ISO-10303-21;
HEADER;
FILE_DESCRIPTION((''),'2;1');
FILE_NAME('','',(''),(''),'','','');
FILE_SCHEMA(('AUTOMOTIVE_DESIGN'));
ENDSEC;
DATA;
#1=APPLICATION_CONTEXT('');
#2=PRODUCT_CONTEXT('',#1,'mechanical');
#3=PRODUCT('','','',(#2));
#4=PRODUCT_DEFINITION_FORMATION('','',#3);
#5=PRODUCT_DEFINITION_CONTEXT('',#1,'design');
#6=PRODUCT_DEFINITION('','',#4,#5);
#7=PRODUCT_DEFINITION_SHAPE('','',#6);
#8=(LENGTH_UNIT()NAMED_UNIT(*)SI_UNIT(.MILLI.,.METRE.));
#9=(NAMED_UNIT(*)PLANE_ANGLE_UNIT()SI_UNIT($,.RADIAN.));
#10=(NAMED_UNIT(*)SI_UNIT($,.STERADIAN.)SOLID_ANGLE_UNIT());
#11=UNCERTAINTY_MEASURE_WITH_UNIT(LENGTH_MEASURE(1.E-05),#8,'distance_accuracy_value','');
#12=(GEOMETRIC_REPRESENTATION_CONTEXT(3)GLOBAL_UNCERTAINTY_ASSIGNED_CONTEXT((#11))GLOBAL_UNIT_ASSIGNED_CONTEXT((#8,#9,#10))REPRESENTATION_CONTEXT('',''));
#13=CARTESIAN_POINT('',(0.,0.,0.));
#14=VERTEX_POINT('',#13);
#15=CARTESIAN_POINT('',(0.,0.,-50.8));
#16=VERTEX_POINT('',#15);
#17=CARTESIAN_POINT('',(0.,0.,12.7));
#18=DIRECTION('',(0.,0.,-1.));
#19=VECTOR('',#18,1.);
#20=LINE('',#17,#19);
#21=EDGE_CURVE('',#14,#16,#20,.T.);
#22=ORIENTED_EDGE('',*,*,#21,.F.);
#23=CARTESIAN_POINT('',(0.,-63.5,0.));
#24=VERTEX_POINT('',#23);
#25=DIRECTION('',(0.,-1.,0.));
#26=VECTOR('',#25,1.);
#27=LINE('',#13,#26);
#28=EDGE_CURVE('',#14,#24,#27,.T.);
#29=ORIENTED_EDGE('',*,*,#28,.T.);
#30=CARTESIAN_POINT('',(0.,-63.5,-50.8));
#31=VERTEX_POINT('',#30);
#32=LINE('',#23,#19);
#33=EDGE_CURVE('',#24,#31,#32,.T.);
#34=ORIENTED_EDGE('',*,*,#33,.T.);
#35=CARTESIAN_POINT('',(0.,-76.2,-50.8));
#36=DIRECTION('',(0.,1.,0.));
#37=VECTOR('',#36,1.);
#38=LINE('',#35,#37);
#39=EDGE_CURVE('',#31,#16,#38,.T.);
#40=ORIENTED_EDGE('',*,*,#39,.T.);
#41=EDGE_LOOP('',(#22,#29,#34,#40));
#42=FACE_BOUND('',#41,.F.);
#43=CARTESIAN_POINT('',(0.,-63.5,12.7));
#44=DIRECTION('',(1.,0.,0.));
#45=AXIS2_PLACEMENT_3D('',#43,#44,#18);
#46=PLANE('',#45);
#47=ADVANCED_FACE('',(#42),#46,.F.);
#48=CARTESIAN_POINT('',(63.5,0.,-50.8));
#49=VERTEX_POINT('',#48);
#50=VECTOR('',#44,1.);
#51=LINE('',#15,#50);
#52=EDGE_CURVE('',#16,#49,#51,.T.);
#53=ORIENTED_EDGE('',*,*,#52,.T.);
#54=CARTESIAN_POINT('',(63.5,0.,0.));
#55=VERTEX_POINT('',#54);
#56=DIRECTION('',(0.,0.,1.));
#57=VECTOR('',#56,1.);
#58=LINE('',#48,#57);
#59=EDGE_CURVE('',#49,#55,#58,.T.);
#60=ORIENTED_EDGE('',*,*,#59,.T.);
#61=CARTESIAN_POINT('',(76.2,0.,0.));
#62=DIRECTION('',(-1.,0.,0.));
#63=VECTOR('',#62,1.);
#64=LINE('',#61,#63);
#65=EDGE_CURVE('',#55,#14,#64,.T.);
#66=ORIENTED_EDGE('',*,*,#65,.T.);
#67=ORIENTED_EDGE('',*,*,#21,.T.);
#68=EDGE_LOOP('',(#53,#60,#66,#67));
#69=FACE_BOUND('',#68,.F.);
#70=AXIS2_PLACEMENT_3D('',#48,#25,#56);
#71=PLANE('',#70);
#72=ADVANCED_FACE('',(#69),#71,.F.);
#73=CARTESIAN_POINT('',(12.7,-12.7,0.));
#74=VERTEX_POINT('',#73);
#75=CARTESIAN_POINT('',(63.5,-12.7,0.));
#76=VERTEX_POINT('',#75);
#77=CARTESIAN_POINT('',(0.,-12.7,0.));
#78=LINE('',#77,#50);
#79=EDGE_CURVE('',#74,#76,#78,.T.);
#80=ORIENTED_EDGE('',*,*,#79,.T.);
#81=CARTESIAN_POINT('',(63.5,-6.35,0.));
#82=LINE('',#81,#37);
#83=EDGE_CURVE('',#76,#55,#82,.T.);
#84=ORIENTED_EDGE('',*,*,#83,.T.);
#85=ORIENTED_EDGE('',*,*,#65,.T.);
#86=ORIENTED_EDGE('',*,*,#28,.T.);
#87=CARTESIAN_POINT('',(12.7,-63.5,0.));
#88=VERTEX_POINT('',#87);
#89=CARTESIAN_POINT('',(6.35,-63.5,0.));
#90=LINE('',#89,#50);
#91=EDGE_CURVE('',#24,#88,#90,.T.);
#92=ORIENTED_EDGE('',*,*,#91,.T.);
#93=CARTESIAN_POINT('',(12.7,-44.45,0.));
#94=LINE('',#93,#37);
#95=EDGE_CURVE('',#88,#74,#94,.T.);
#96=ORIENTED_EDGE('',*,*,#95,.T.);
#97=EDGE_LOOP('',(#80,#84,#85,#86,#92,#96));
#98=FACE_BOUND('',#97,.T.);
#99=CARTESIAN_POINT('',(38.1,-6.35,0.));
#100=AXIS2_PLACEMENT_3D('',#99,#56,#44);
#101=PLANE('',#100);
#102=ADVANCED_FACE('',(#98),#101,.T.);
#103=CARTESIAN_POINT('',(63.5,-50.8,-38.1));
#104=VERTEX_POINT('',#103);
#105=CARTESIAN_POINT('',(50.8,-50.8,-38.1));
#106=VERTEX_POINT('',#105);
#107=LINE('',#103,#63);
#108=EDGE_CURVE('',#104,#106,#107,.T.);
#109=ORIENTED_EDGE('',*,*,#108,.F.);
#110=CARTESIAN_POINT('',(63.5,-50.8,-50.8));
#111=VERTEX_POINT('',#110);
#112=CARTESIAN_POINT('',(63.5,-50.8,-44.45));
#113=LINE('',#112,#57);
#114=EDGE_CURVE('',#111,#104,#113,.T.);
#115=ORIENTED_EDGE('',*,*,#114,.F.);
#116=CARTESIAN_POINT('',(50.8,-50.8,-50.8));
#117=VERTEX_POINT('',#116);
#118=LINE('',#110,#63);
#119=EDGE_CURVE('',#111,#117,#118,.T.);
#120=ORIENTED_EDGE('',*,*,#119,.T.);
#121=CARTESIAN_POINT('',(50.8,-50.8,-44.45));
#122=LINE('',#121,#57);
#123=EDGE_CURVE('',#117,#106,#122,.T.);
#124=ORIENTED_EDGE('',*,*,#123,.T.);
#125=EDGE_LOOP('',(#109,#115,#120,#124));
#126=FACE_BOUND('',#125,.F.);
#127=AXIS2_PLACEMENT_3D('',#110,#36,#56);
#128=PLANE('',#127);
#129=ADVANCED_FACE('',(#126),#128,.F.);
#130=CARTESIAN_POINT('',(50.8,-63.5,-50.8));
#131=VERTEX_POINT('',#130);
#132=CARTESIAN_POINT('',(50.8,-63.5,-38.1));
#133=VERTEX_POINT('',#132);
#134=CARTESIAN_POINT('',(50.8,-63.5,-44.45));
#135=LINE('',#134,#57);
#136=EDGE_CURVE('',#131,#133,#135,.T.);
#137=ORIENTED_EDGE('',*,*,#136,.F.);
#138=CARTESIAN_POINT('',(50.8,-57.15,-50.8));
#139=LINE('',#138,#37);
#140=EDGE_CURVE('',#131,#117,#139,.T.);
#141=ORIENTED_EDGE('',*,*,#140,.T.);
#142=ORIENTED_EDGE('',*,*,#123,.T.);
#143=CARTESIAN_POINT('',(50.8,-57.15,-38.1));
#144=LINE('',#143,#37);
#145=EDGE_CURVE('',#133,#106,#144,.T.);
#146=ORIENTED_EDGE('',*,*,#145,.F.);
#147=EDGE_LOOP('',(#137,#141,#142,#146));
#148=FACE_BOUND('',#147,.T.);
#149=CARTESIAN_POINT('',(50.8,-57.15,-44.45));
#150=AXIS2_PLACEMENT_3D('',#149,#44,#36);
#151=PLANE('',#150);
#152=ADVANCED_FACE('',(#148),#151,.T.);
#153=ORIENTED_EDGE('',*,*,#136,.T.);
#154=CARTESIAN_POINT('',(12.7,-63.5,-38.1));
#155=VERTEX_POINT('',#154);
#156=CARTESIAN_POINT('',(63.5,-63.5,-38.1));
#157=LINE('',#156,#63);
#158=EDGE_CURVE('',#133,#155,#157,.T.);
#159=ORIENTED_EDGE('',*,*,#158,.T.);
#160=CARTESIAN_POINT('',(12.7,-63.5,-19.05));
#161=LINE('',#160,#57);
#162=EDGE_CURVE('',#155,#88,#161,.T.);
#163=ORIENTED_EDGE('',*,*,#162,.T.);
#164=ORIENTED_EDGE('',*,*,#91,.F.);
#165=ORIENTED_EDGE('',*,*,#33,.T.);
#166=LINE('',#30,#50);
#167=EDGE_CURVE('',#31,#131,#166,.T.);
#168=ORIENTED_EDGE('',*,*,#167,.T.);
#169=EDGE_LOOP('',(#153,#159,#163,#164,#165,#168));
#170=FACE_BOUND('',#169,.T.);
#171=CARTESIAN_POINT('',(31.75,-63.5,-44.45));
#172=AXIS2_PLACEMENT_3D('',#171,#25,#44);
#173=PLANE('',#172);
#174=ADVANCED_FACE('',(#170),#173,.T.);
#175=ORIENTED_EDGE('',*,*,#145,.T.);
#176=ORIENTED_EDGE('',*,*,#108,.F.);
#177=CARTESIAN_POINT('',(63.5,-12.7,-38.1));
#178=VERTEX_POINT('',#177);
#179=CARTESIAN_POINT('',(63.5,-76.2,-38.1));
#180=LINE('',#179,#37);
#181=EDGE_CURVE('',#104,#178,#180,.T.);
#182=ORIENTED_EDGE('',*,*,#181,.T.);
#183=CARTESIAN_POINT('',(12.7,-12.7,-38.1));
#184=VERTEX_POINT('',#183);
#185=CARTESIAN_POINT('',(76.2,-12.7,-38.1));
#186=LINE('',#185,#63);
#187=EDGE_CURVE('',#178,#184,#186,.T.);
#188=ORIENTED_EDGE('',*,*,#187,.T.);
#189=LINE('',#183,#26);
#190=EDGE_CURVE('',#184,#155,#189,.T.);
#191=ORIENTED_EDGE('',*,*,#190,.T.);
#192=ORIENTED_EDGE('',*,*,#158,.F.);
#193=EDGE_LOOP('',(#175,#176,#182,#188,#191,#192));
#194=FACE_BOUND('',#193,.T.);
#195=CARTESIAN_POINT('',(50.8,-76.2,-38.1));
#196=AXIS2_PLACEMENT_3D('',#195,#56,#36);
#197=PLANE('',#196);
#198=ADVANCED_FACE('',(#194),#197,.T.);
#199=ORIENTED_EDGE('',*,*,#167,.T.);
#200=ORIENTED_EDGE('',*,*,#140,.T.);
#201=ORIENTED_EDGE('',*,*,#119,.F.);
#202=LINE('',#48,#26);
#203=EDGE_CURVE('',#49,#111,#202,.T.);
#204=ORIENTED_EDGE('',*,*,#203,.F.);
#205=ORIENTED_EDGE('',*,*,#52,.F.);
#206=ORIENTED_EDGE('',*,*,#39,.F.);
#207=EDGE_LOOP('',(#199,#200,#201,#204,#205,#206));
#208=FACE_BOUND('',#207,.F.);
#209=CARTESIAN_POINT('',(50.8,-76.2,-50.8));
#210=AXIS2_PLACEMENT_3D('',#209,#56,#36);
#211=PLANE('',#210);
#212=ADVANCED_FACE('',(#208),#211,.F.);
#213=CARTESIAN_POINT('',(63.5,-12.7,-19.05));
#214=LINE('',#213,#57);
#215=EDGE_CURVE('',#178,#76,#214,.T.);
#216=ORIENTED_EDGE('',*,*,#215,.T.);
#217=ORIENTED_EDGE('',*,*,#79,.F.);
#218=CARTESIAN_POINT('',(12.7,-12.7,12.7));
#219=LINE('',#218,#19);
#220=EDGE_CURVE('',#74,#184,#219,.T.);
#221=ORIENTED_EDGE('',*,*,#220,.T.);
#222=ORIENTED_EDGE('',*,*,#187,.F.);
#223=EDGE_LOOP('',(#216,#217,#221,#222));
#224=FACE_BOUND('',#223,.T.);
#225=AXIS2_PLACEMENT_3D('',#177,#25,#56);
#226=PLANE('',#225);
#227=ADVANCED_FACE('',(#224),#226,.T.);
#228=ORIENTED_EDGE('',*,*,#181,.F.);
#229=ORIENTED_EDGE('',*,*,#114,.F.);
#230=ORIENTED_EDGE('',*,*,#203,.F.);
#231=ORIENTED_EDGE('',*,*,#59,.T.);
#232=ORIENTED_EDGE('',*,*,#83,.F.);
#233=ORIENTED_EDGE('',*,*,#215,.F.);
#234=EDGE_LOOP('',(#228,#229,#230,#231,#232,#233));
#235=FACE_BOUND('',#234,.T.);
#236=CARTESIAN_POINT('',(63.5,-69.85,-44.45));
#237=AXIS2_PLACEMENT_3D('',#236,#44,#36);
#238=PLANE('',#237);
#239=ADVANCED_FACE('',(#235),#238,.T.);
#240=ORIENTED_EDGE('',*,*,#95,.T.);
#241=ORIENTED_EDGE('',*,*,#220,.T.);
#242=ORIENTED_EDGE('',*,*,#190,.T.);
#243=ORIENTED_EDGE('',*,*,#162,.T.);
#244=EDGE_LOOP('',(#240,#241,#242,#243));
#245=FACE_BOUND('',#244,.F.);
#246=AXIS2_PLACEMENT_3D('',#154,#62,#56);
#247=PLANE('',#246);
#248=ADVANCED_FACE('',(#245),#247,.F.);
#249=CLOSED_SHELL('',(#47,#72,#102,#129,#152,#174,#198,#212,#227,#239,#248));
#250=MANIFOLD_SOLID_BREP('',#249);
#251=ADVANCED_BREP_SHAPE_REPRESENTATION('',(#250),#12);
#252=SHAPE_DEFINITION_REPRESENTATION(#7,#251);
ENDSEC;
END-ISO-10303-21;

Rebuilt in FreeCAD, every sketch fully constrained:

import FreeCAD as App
import Part
import Sketcher
from FreeCAD import Vector
Q = App.Units.Quantity

doc = App.newDocument("Part")
body = doc.addObject("PartDesign::Body", "Body")

sketch1 = body.newObject("Sketcher::SketchObject", "Sketch")
sketch1.AttachmentSupport = (doc.getObject("XZ_Plane"), [""])
sketch1.MapMode = "FlatFace"
sketch1.addGeometry(Part.LineSegment(Vector(0, 0, 0), Vector(0, -51, 0)), False)
sketch1.addGeometry(Part.LineSegment(Vector(0, -51, 0), Vector(13, -51, 0)), False)
sketch1.addGeometry(Part.LineSegment(Vector(13, -51, 0), Vector(13, 0, 0)), False)
sketch1.addGeometry(Part.LineSegment(Vector(13, 0, 0), Vector(0, 0, 0)), False)
sketch1.addConstraint(Sketcher.Constraint("Coincident", 0, 2, 1, 1))
sketch1.addConstraint(Sketcher.Constraint("Coincident", 1, 2, 2, 1))
sketch1.addConstraint(Sketcher.Constraint("Coincident", 2, 2, 3, 1))
sketch1.addConstraint(Sketcher.Constraint("Coincident", 3, 2, 0, 1))
sketch1.addConstraint(Sketcher.Constraint("Vertical", 0))
sketch1.addConstraint(Sketcher.Constraint("Horizontal", 1))
sketch1.addConstraint(Sketcher.Constraint("Vertical", 2))
sketch1.addConstraint(Sketcher.Constraint("Horizontal", 3))
sketch1.addConstraint(Sketcher.Constraint("Coincident", 3, 2, -1, 1))
sketch1.addConstraint(Sketcher.Constraint("DistanceY", 0, 2, 0, 1, Q("2 in")))
sketch1.addConstraint(Sketcher.Constraint("DistanceX", 1, 1, 1, 2, Q("0.5 in")))
pad1 = body.newObject("PartDesign::Pad", "Pad")
pad1.Profile = sketch1
pad1.Length = Q("2.5 in")

sketch2 = body.newObject("Sketcher::SketchObject", "Sketch001")
sketch2.AttachmentSupport = (doc.getObject("YZ_Plane"), [""])
sketch2.MapMode = "FlatFace"
sketch2.AttachmentOffset = App.Placement(Vector(0, 0, 0.5 * 25.4), App.Rotation())
sketch2.addGeometry(Part.LineSegment(Vector(-64, -38, 0), Vector(-64, -51, 0)), False)
sketch2.addGeometry(Part.LineSegment(Vector(-64, -51, 0), Vector(0, -51, 0)), False)
sketch2.addGeometry(Part.LineSegment(Vector(0, -51, 0), Vector(0, -38, 0)), False)
sketch2.addGeometry(Part.LineSegment(Vector(0, -38, 0), Vector(-64, -38, 0)), False)
sketch2.addConstraint(Sketcher.Constraint("Coincident", 0, 2, 1, 1))
sketch2.addConstraint(Sketcher.Constraint("Coincident", 1, 2, 2, 1))
sketch2.addConstraint(Sketcher.Constraint("Coincident", 2, 2, 3, 1))
sketch2.addConstraint(Sketcher.Constraint("Coincident", 3, 2, 0, 1))
sketch2.addConstraint(Sketcher.Constraint("Vertical", 0))
sketch2.addConstraint(Sketcher.Constraint("Horizontal", 1))
sketch2.addConstraint(Sketcher.Constraint("Vertical", 2))
sketch2.addConstraint(Sketcher.Constraint("Horizontal", 3))
sketch2.addConstraint(Sketcher.Constraint("PointOnObject", 1, 2, -2))
sketch2.addConstraint(Sketcher.Constraint("DistanceX", 1, 1, 1, 2, Q("2.5 in")))
sketch2.addConstraint(Sketcher.Constraint("DistanceY", 0, 2, 0, 1, Q("0.5 in")))
sketch2.addConstraint(Sketcher.Constraint("DistanceY", 0, 2, -1, 1, Q("2 in")))
pad2 = body.newObject("PartDesign::Pad", "Pad001")
pad2.Profile = sketch2
pad2.Length = Q("2 in")

sketch3 = body.newObject("Sketcher::SketchObject", "Sketch002")
sketch3.AttachmentSupport = (doc.getObject("YZ_Plane"), [""])
sketch3.MapMode = "FlatFace"
sketch3.AttachmentOffset = App.Placement(Vector(0, 0, 0.5 * 25.4), App.Rotation())
sketch3.addGeometry(Part.LineSegment(Vector(-13, 0, 0), Vector(-13, -38, 0)), False)
sketch3.addGeometry(Part.LineSegment(Vector(-13, -38, 0), Vector(0, -38, 0)), False)
sketch3.addGeometry(Part.LineSegment(Vector(0, -38, 0), Vector(0, 0, 0)), False)
sketch3.addGeometry(Part.LineSegment(Vector(0, 0, 0), Vector(-13, 0, 0)), False)
sketch3.addConstraint(Sketcher.Constraint("Coincident", 0, 2, 1, 1))
sketch3.addConstraint(Sketcher.Constraint("Coincident", 1, 2, 2, 1))
sketch3.addConstraint(Sketcher.Constraint("Coincident", 2, 2, 3, 1))
sketch3.addConstraint(Sketcher.Constraint("Coincident", 3, 2, 0, 1))
sketch3.addConstraint(Sketcher.Constraint("Vertical", 0))
sketch3.addConstraint(Sketcher.Constraint("Horizontal", 1))
sketch3.addConstraint(Sketcher.Constraint("Vertical", 2))
sketch3.addConstraint(Sketcher.Constraint("Horizontal", 3))
sketch3.addConstraint(Sketcher.Constraint("Coincident", 2, 2, -1, 1))
sketch3.addConstraint(Sketcher.Constraint("DistanceX", 1, 1, 1, 2, Q("0.5 in")))
sketch3.addConstraint(Sketcher.Constraint("DistanceY", 0, 2, 0, 1, Q("1.5 in")))
pad3 = body.newObject("PartDesign::Pad", "Pad002")
pad3.Profile = sketch3
pad3.Length = Q("2 in")

sketch4 = body.newObject("Sketcher::SketchObject", "Sketch003")
sketch4.AttachmentSupport = (doc.getObject("YZ_Plane"), [""])
sketch4.MapMode = "FlatFace"
sketch4.AttachmentOffset = App.Placement(Vector(0, 0, 2.5 * 25.4), App.Rotation())
sketch4.addGeometry(Part.LineSegment(Vector(-64, -38, 0), Vector(-64, -51, 0)), False)
sketch4.addGeometry(Part.LineSegment(Vector(-64, -51, 0), Vector(-51, -51, 0)), False)
sketch4.addGeometry(Part.LineSegment(Vector(-51, -51, 0), Vector(-51, -38, 0)), False)
sketch4.addGeometry(Part.LineSegment(Vector(-51, -38, 0), Vector(-64, -38, 0)), False)
sketch4.addConstraint(Sketcher.Constraint("Coincident", 0, 2, 1, 1))
sketch4.addConstraint(Sketcher.Constraint("Coincident", 1, 2, 2, 1))
sketch4.addConstraint(Sketcher.Constraint("Coincident", 2, 2, 3, 1))
sketch4.addConstraint(Sketcher.Constraint("Coincident", 3, 2, 0, 1))
sketch4.addConstraint(Sketcher.Constraint("Vertical", 0))
sketch4.addConstraint(Sketcher.Constraint("Horizontal", 1))
sketch4.addConstraint(Sketcher.Constraint("Vertical", 2))
sketch4.addConstraint(Sketcher.Constraint("Horizontal", 3))
sketch4.addConstraint(Sketcher.Constraint("Equal", 3, 0))
sketch4.addConstraint(Sketcher.Constraint("DistanceX", 1, 1, 1, 2, Q("0.5 in")))
sketch4.addConstraint(Sketcher.Constraint("DistanceY", 0, 2, -1, 1, Q("2 in")))
sketch4.addConstraint(Sketcher.Constraint("DistanceX", 1, 2, -1, 1, Q("2 in")))
pad4 = body.newObject("PartDesign::Pad", "Pad003")
pad4.Profile = sketch4
pad4.Length = Q("0.5 in")
pad4.Reversed = True

sketch5 = body.newObject("Sketcher::SketchObject", "Sketch004")
sketch5.AttachmentSupport = (doc.getObject("XY_Plane"), [""])
sketch5.MapMode = "FlatFace"
sketch5.AttachmentOffset = App.Placement(Vector(0, 0, -1.5 * 25.4), App.Rotation())
sketch5.addGeometry(Part.LineSegment(Vector(51, -51, 0), Vector(51, -64, 0)), False)
sketch5.addGeometry(Part.LineSegment(Vector(51, -64, 0), Vector(64, -64, 0)), False)
sketch5.addGeometry(Part.LineSegment(Vector(64, -64, 0), Vector(64, -51, 0)), False)
sketch5.addGeometry(Part.LineSegment(Vector(64, -51, 0), Vector(51, -51, 0)), False)
sketch5.addConstraint(Sketcher.Constraint("Coincident", 0, 2, 1, 1))
sketch5.addConstraint(Sketcher.Constraint("Coincident", 1, 2, 2, 1))
sketch5.addConstraint(Sketcher.Constraint("Coincident", 2, 2, 3, 1))
sketch5.addConstraint(Sketcher.Constraint("Coincident", 3, 2, 0, 1))
sketch5.addConstraint(Sketcher.Constraint("Vertical", 0))
sketch5.addConstraint(Sketcher.Constraint("Horizontal", 1))
sketch5.addConstraint(Sketcher.Constraint("Vertical", 2))
sketch5.addConstraint(Sketcher.Constraint("Horizontal", 3))
sketch5.addConstraint(Sketcher.Constraint("Equal", 3, 0))
sketch5.addConstraint(Sketcher.Constraint("DistanceX", 1, 1, 1, 2, Q("0.5 in")))
sketch5.addConstraint(Sketcher.Constraint("DistanceX", -1, 1, 0, 2, Q("2 in")))
sketch5.addConstraint(Sketcher.Constraint("DistanceY", 2, 2, -1, 1, Q("2 in")))
pocket1 = body.newObject("PartDesign::Pocket", "Pocket")
pocket1.Profile = sketch5
pocket1.Length = Q("0.5 in")

sketch6 = body.newObject("Sketcher::SketchObject", "Sketch005")
sketch6.AttachmentSupport = (doc.getObject("XY_Plane"), [""])
sketch6.MapMode = "FlatFace"
sketch6.addGeometry(Part.LineSegment(Vector(0, 0, 0), Vector(0, -64, 0)), False)
sketch6.addGeometry(Part.LineSegment(Vector(0, -64, 0), Vector(13, -64, 0)), False)
sketch6.addGeometry(Part.LineSegment(Vector(13, -64, 0), Vector(13, 0, 0)), False)
sketch6.addGeometry(Part.LineSegment(Vector(13, 0, 0), Vector(0, 0, 0)), False)
sketch6.addConstraint(Sketcher.Constraint("Coincident", 0, 2, 1, 1))
sketch6.addConstraint(Sketcher.Constraint("Coincident", 1, 2, 2, 1))
sketch6.addConstraint(Sketcher.Constraint("Coincident", 2, 2, 3, 1))
sketch6.addConstraint(Sketcher.Constraint("Coincident", 3, 2, 0, 1))
sketch6.addConstraint(Sketcher.Constraint("Vertical", 0))
sketch6.addConstraint(Sketcher.Constraint("Horizontal", 1))
sketch6.addConstraint(Sketcher.Constraint("Vertical", 2))
sketch6.addConstraint(Sketcher.Constraint("Horizontal", 3))
sketch6.addConstraint(Sketcher.Constraint("Coincident", 3, 2, -1, 1))
sketch6.addConstraint(Sketcher.Constraint("DistanceX", 1, 1, 1, 2, Q("0.5 in")))
sketch6.addConstraint(Sketcher.Constraint("DistanceY", 0, 2, 0, 1, Q("2.5 in")))
pad5 = body.newObject("PartDesign::Pad", "Pad004")
pad5.Profile = sketch6
pad5.Length = Q("0.5 in")

sketch7 = body.newObject("Sketcher::SketchObject", "Sketch006")
sketch7.AttachmentSupport = (doc.getObject("XY_Plane"), [""])
sketch7.MapMode = "FlatFace"
sketch7.addGeometry(Part.LineSegment(Vector(13, 0, 0), Vector(13, -13, 0)), False)
sketch7.addGeometry(Part.LineSegment(Vector(13, -13, 0), Vector(64, -13, 0)), False)
sketch7.addGeometry(Part.LineSegment(Vector(64, -13, 0), Vector(64, 0, 0)), False)
sketch7.addGeometry(Part.LineSegment(Vector(64, 0, 0), Vector(13, 0, 0)), False)
sketch7.addConstraint(Sketcher.Constraint("Coincident", 0, 2, 1, 1))
sketch7.addConstraint(Sketcher.Constraint("Coincident", 1, 2, 2, 1))
sketch7.addConstraint(Sketcher.Constraint("Coincident", 2, 2, 3, 1))
sketch7.addConstraint(Sketcher.Constraint("Coincident", 3, 2, 0, 1))
sketch7.addConstraint(Sketcher.Constraint("Vertical", 0))
sketch7.addConstraint(Sketcher.Constraint("Horizontal", 1))
sketch7.addConstraint(Sketcher.Constraint("Vertical", 2))
sketch7.addConstraint(Sketcher.Constraint("Horizontal", 3))
sketch7.addConstraint(Sketcher.Constraint("PointOnObject", 2, 2, -1))
sketch7.addConstraint(Sketcher.Constraint("DistanceX", 1, 1, 1, 2, Q("2 in")))
sketch7.addConstraint(Sketcher.Constraint("DistanceY", 0, 2, 0, 1, Q("0.5 in")))
sketch7.addConstraint(Sketcher.Constraint("DistanceX", -1, 1, 0, 2, Q("0.5 in")))
pad6 = body.newObject("PartDesign::Pad", "Pad005")
pad6.Profile = sketch7
pad6.Length = Q("0.5 in")

sketch8 = body.newObject("Sketcher::SketchObject", "Sketch007")
sketch8.AttachmentSupport = (doc.getObject("XZ_Plane"), [""])
sketch8.MapMode = "FlatFace"
sketch8.AttachmentOffset = App.Placement(Vector(0, 0, 2.5 * 25.4), App.Rotation())
sketch8.addGeometry(Part.LineSegment(Vector(51, -51, 0), Vector(51, -38, 0)), False)
sketch8.addGeometry(Part.LineSegment(Vector(51, -38, 0), Vector(13, -38, 0)), False)
sketch8.addGeometry(Part.LineSegment(Vector(13, -38, 0), Vector(13, 13, 0)), False)
sketch8.addGeometry(Part.LineSegment(Vector(13, 13, 0), Vector(0, 13, 0)), False)
sketch8.addGeometry(Part.LineSegment(Vector(0, 13, 0), Vector(0, -51, 0)), False)
sketch8.addGeometry(Part.LineSegment(Vector(0, -51, 0), Vector(51, -51, 0)), False)
sketch8.addConstraint(Sketcher.Constraint("Coincident", 0, 2, 1, 1))
sketch8.addConstraint(Sketcher.Constraint("Coincident", 1, 2, 2, 1))
sketch8.addConstraint(Sketcher.Constraint("Coincident", 2, 2, 3, 1))
sketch8.addConstraint(Sketcher.Constraint("Coincident", 3, 2, 4, 1))
sketch8.addConstraint(Sketcher.Constraint("Coincident", 4, 2, 5, 1))
sketch8.addConstraint(Sketcher.Constraint("Coincident", 5, 2, 0, 1))
sketch8.addConstraint(Sketcher.Constraint("Vertical", 0))
sketch8.addConstraint(Sketcher.Constraint("Horizontal", 1))
sketch8.addConstraint(Sketcher.Constraint("Vertical", 2))
sketch8.addConstraint(Sketcher.Constraint("Horizontal", 3))
sketch8.addConstraint(Sketcher.Constraint("Vertical", 4))
sketch8.addConstraint(Sketcher.Constraint("Horizontal", 5))
sketch8.addConstraint(Sketcher.Constraint("PointOnObject", 3, 2, -2))
sketch8.addConstraint(Sketcher.Constraint("Equal", 3, 0))
sketch8.addConstraint(Sketcher.Constraint("Equal", 5, 2))
sketch8.addConstraint(Sketcher.Constraint("DistanceX", 5, 1, 5, 2, Q("2 in")))
sketch8.addConstraint(Sketcher.Constraint("DistanceX", 1, 2, 1, 1, Q("1.5 in")))
sketch8.addConstraint(Sketcher.Constraint("DistanceY", 4, 2, -1, 1, Q("2 in")))
pad7 = body.newObject("PartDesign::Pad", "Pad006")
pad7.Profile = sketch8
pad7.Length = Q("0.5 in")

sketch9 = body.newObject("Sketcher::SketchObject", "Sketch008")
sketch9.AttachmentSupport = (doc.getObject("YZ_Plane"), [""])
sketch9.MapMode = "FlatFace"
sketch9.AttachmentOffset = App.Placement(Vector(0, 0, 2.5 * 25.4), App.Rotation())
sketch9.addGeometry(Part.LineSegment(Vector(-51, -38, 0), Vector(-51, -51, 0)), False)
sketch9.addGeometry(Part.LineSegment(Vector(-51, -51, 0), Vector(0, -51, 0)), False)
sketch9.addGeometry(Part.LineSegment(Vector(0, -51, 0), Vector(0, 13, 0)), False)
sketch9.addGeometry(Part.LineSegment(Vector(0, 13, 0), Vector(-13, 13, 0)), False)
sketch9.addGeometry(Part.LineSegment(Vector(-13, 13, 0), Vector(-13, -38, 0)), False)
sketch9.addGeometry(Part.LineSegment(Vector(-13, -38, 0), Vector(-51, -38, 0)), False)
sketch9.addConstraint(Sketcher.Constraint("Coincident", 0, 2, 1, 1))
sketch9.addConstraint(Sketcher.Constraint("Coincident", 1, 2, 2, 1))
sketch9.addConstraint(Sketcher.Constraint("Coincident", 2, 2, 3, 1))
sketch9.addConstraint(Sketcher.Constraint("Coincident", 3, 2, 4, 1))
sketch9.addConstraint(Sketcher.Constraint("Coincident", 4, 2, 5, 1))
sketch9.addConstraint(Sketcher.Constraint("Coincident", 5, 2, 0, 1))
sketch9.addConstraint(Sketcher.Constraint("Vertical", 0))
sketch9.addConstraint(Sketcher.Constraint("Horizontal", 1))
sketch9.addConstraint(Sketcher.Constraint("Vertical", 2))
sketch9.addConstraint(Sketcher.Constraint("Horizontal", 3))
sketch9.addConstraint(Sketcher.Constraint("Vertical", 4))
sketch9.addConstraint(Sketcher.Constraint("Horizontal", 5))
sketch9.addConstraint(Sketcher.Constraint("PointOnObject", 1, 2, -2))
sketch9.addConstraint(Sketcher.Constraint("Equal", 3, 0))
sketch9.addConstraint(Sketcher.Constraint("Equal", 1, 4))
sketch9.addConstraint(Sketcher.Constraint("DistanceX", 1, 1, 1, 2, Q("2 in")))
sketch9.addConstraint(Sketcher.Constraint("DistanceX", 3, 2, 3, 1, Q("0.5 in")))
sketch9.addConstraint(Sketcher.Constraint("DistanceY", 0, 2, -1, 1, Q("2 in")))
pad8 = body.newObject("PartDesign::Pad", "Pad007")
pad8.Profile = sketch9
pad8.Length = Q("0.5 in")

sketch10 = body.newObject("Sketcher::SketchObject", "Sketch009")
sketch10.AttachmentSupport = (doc.getObject("YZ_Plane"), [""])
sketch10.MapMode = "FlatFace"
sketch10.AttachmentOffset = App.Placement(Vector(0, 0, 2 * 25.4), App.Rotation())
sketch10.addGeometry(Part.LineSegment(Vector(-64, -38, 0), Vector(-64, -51, 0)), False)
sketch10.addGeometry(Part.LineSegment(Vector(-64, -51, 0), Vector(-51, -51, 0)), False)
sketch10.addGeometry(Part.LineSegment(Vector(-51, -51, 0), Vector(-51, -38, 0)), False)
sketch10.addGeometry(Part.LineSegment(Vector(-51, -38, 0), Vector(-64, -38, 0)), False)
sketch10.addConstraint(Sketcher.Constraint("Coincident", 0, 2, 1, 1))
sketch10.addConstraint(Sketcher.Constraint("Coincident", 1, 2, 2, 1))
sketch10.addConstraint(Sketcher.Constraint("Coincident", 2, 2, 3, 1))
sketch10.addConstraint(Sketcher.Constraint("Coincident", 3, 2, 0, 1))
sketch10.addConstraint(Sketcher.Constraint("Vertical", 0))
sketch10.addConstraint(Sketcher.Constraint("Horizontal", 1))
sketch10.addConstraint(Sketcher.Constraint("Vertical", 2))
sketch10.addConstraint(Sketcher.Constraint("Horizontal", 3))
sketch10.addConstraint(Sketcher.Constraint("Equal", 3, 0))
sketch10.addConstraint(Sketcher.Constraint("DistanceX", 1, 1, 1, 2, Q("0.5 in")))
sketch10.addConstraint(Sketcher.Constraint("DistanceY", 0, 2, -1, 1, Q("2 in")))
sketch10.addConstraint(Sketcher.Constraint("DistanceX", 1, 2, -1, 1, Q("2 in")))
pad9 = body.newObject("PartDesign::Pad", "Pad008")
pad9.Profile = sketch10
pad9.Length = Q("1 in")

sketch11 = body.newObject("Sketcher::SketchObject", "Sketch010")
sketch11.AttachmentSupport = (doc.getObject("YZ_Plane"), [""])
sketch11.MapMode = "FlatFace"
sketch11.AttachmentOffset = App.Placement(Vector(0, 0, 2 * 25.4), App.Rotation())
sketch11.addGeometry(Part.LineSegment(Vector(-76, -38, 0), Vector(-76, -51, 0)), False)
sketch11.addGeometry(Part.LineSegment(Vector(-76, -51, 0), Vector(-64, -51, 0)), False)
sketch11.addGeometry(Part.LineSegment(Vector(-64, -51, 0), Vector(-64, -38, 0)), False)
sketch11.addGeometry(Part.LineSegment(Vector(-64, -38, 0), Vector(-76, -38, 0)), False)
sketch11.addConstraint(Sketcher.Constraint("Coincident", 0, 2, 1, 1))
sketch11.addConstraint(Sketcher.Constraint("Coincident", 1, 2, 2, 1))
sketch11.addConstraint(Sketcher.Constraint("Coincident", 2, 2, 3, 1))
sketch11.addConstraint(Sketcher.Constraint("Coincident", 3, 2, 0, 1))
sketch11.addConstraint(Sketcher.Constraint("Vertical", 0))
sketch11.addConstraint(Sketcher.Constraint("Horizontal", 1))
sketch11.addConstraint(Sketcher.Constraint("Vertical", 2))
sketch11.addConstraint(Sketcher.Constraint("Horizontal", 3))
sketch11.addConstraint(Sketcher.Constraint("Equal", 3, 0))
sketch11.addConstraint(Sketcher.Constraint("DistanceX", 1, 1, 1, 2, Q("0.5 in")))
sketch11.addConstraint(Sketcher.Constraint("DistanceX", 0, 2, -1, 1, Q("3 in")))
sketch11.addConstraint(Sketcher.Constraint("DistanceY", 0, 2, -1, 1, Q("2 in")))
pad10 = body.newObject("PartDesign::Pad", "Pad009")
pad10.Profile = sketch11
pad10.Length = Q("0.5 in")

sketch12 = body.newObject("Sketcher::SketchObject", "Sketch011")
sketch12.AttachmentSupport = (doc.getObject("XY_Plane"), [""])
sketch12.MapMode = "FlatFace"
sketch12.AttachmentOffset = App.Placement(Vector(0, 0, 0.5 * 25.4), App.Rotation())
sketch12.addGeometry(Part.LineSegment(Vector(76, -13, 0), Vector(76, 0, 0)), False)
sketch12.addGeometry(Part.LineSegment(Vector(76, 0, 0), Vector(0, 0, 0)), False)
sketch12.addGeometry(Part.LineSegment(Vector(0, 0, 0), Vector(0, -76, 0)), False)
sketch12.addGeometry(Part.LineSegment(Vector(0, -76, 0), Vector(13, -76, 0)), False)
sketch12.addGeometry(Part.LineSegment(Vector(13, -76, 0), Vector(13, -13, 0)), False)
sketch12.addGeometry(Part.LineSegment(Vector(13, -13, 0), Vector(76, -13, 0)), False)
sketch12.addConstraint(Sketcher.Constraint("Coincident", 0, 2, 1, 1))
sketch12.addConstraint(Sketcher.Constraint("Coincident", 1, 2, 2, 1))
sketch12.addConstraint(Sketcher.Constraint("Coincident", 2, 2, 3, 1))
sketch12.addConstraint(Sketcher.Constraint("Coincident", 3, 2, 4, 1))
sketch12.addConstraint(Sketcher.Constraint("Coincident", 4, 2, 5, 1))
sketch12.addConstraint(Sketcher.Constraint("Coincident", 5, 2, 0, 1))
sketch12.addConstraint(Sketcher.Constraint("Vertical", 0))
sketch12.addConstraint(Sketcher.Constraint("Horizontal", 1))
sketch12.addConstraint(Sketcher.Constraint("Vertical", 2))
sketch12.addConstraint(Sketcher.Constraint("Horizontal", 3))
sketch12.addConstraint(Sketcher.Constraint("Vertical", 4))
sketch12.addConstraint(Sketcher.Constraint("Horizontal", 5))
sketch12.addConstraint(Sketcher.Constraint("Coincident", 1, 2, -1, 1))
sketch12.addConstraint(Sketcher.Constraint("Equal", 3, 0))
sketch12.addConstraint(Sketcher.Constraint("Equal", 1, 2))
sketch12.addConstraint(Sketcher.Constraint("DistanceX", 1, 2, 1, 1, Q("3 in")))
sketch12.addConstraint(Sketcher.Constraint("DistanceX", 3, 1, 3, 2, Q("0.5 in")))
pocket2 = body.newObject("PartDesign::Pocket", "Pocket001")
pocket2.Profile = sketch12
pocket2.Length = Q("0.5 in")

sketch13 = body.newObject("Sketcher::SketchObject", "Sketch012")
sketch13.AttachmentSupport = (doc.getObject("YZ_Plane"), [""])
sketch13.MapMode = "FlatFace"
sketch13.AttachmentOffset = App.Placement(Vector(0, 0, 3 * 25.4), App.Rotation())
sketch13.addGeometry(Part.LineSegment(Vector(-64, -38, 0), Vector(-64, -51, 0)), False)
sketch13.addGeometry(Part.LineSegment(Vector(-64, -51, 0), Vector(0, -51, 0)), False)
sketch13.addGeometry(Part.LineSegment(Vector(0, -51, 0), Vector(0, 0, 0)), False)
sketch13.addGeometry(Part.LineSegment(Vector(0, 0, 0), Vector(-13, 0, 0)), False)
sketch13.addGeometry(Part.LineSegment(Vector(-13, 0, 0), Vector(-13, -38, 0)), False)
sketch13.addGeometry(Part.LineSegment(Vector(-13, -38, 0), Vector(-64, -38, 0)), False)
sketch13.addConstraint(Sketcher.Constraint("Coincident", 0, 2, 1, 1))
sketch13.addConstraint(Sketcher.Constraint("Coincident", 1, 2, 2, 1))
sketch13.addConstraint(Sketcher.Constraint("Coincident", 2, 2, 3, 1))
sketch13.addConstraint(Sketcher.Constraint("Coincident", 3, 2, 4, 1))
sketch13.addConstraint(Sketcher.Constraint("Coincident", 4, 2, 5, 1))
sketch13.addConstraint(Sketcher.Constraint("Coincident", 5, 2, 0, 1))
sketch13.addConstraint(Sketcher.Constraint("Vertical", 0))
sketch13.addConstraint(Sketcher.Constraint("Horizontal", 1))
sketch13.addConstraint(Sketcher.Constraint("Vertical", 2))
sketch13.addConstraint(Sketcher.Constraint("Horizontal", 3))
sketch13.addConstraint(Sketcher.Constraint("Vertical", 4))
sketch13.addConstraint(Sketcher.Constraint("Horizontal", 5))
sketch13.addConstraint(Sketcher.Constraint("Coincident", 2, 2, -1, 1))
sketch13.addConstraint(Sketcher.Constraint("Equal", 3, 0))
sketch13.addConstraint(Sketcher.Constraint("Equal", 5, 2))
sketch13.addConstraint(Sketcher.Constraint("DistanceX", 5, 2, 5, 1, Q("2 in")))
sketch13.addConstraint(Sketcher.Constraint("DistanceX", 1, 1, 1, 2, Q("2.5 in")))
pocket3 = body.newObject("PartDesign::Pocket", "Pocket002")
pocket3.Profile = sketch13
pocket3.Length = Q("0.5 in")

sketch14 = body.newObject("Sketcher::SketchObject", "Sketch013")
sketch14.AttachmentSupport = (doc.getObject("XZ_Plane"), [""])
sketch14.MapMode = "FlatFace"
sketch14.AttachmentOffset = App.Placement(Vector(0, 0, 3 * 25.4), App.Rotation())
sketch14.addGeometry(Part.LineSegment(Vector(64, -51, 0), Vector(64, -38, 0)), False)
sketch14.addGeometry(Part.LineSegment(Vector(64, -38, 0), Vector(13, -38, 0)), False)
sketch14.addGeometry(Part.LineSegment(Vector(13, -38, 0), Vector(13, 0, 0)), False)
sketch14.addGeometry(Part.LineSegment(Vector(13, 0, 0), Vector(0, 0, 0)), False)
sketch14.addGeometry(Part.LineSegment(Vector(0, 0, 0), Vector(0, -51, 0)), False)
sketch14.addGeometry(Part.LineSegment(Vector(0, -51, 0), Vector(64, -51, 0)), False)
sketch14.addConstraint(Sketcher.Constraint("Coincident", 0, 2, 1, 1))
sketch14.addConstraint(Sketcher.Constraint("Coincident", 1, 2, 2, 1))
sketch14.addConstraint(Sketcher.Constraint("Coincident", 2, 2, 3, 1))
sketch14.addConstraint(Sketcher.Constraint("Coincident", 3, 2, 4, 1))
sketch14.addConstraint(Sketcher.Constraint("Coincident", 4, 2, 5, 1))
sketch14.addConstraint(Sketcher.Constraint("Coincident", 5, 2, 0, 1))
sketch14.addConstraint(Sketcher.Constraint("Vertical", 0))
sketch14.addConstraint(Sketcher.Constraint("Horizontal", 1))
sketch14.addConstraint(Sketcher.Constraint("Vertical", 2))
sketch14.addConstraint(Sketcher.Constraint("Horizontal", 3))
sketch14.addConstraint(Sketcher.Constraint("Vertical", 4))
sketch14.addConstraint(Sketcher.Constraint("Horizontal", 5))
sketch14.addConstraint(Sketcher.Constraint("Coincident", 3, 2, -1, 1))
sketch14.addConstraint(Sketcher.Constraint("Equal", 3, 0))
sketch14.addConstraint(Sketcher.Constraint("Equal", 1, 4))
sketch14.addConstraint(Sketcher.Constraint("DistanceX", 1, 2, 1, 1, Q("2 in")))
sketch14.addConstraint(Sketcher.Constraint("DistanceX", 3, 2, 3, 1, Q("0.5 in")))
pocket4 = body.newObject("PartDesign::Pocket", "Pocket003")
pocket4.Profile = sketch14
pocket4.Length = Q("0.5 in")

sketch15 = body.newObject("Sketcher::SketchObject", "Sketch014")
sketch15.AttachmentSupport = (doc.getObject("YZ_Plane"), [""])
sketch15.MapMode = "FlatFace"
sketch15.AttachmentOffset = App.Placement(Vector(0, 0, 2.5 * 25.4), App.Rotation())
sketch15.addGeometry(Part.LineSegment(Vector(-64, -38, 0), Vector(-64, -51, 0)), False)
sketch15.addGeometry(Part.LineSegment(Vector(-64, -51, 0), Vector(-51, -51, 0)), False)
sketch15.addGeometry(Part.LineSegment(Vector(-51, -51, 0), Vector(-51, -38, 0)), False)
sketch15.addGeometry(Part.LineSegment(Vector(-51, -38, 0), Vector(-64, -38, 0)), False)
sketch15.addConstraint(Sketcher.Constraint("Coincident", 0, 2, 1, 1))
sketch15.addConstraint(Sketcher.Constraint("Coincident", 1, 2, 2, 1))
sketch15.addConstraint(Sketcher.Constraint("Coincident", 2, 2, 3, 1))
sketch15.addConstraint(Sketcher.Constraint("Coincident", 3, 2, 0, 1))
sketch15.addConstraint(Sketcher.Constraint("Vertical", 0))
sketch15.addConstraint(Sketcher.Constraint("Horizontal", 1))
sketch15.addConstraint(Sketcher.Constraint("Vertical", 2))
sketch15.addConstraint(Sketcher.Constraint("Horizontal", 3))
sketch15.addConstraint(Sketcher.Constraint("Equal", 3, 0))
sketch15.addConstraint(Sketcher.Constraint("DistanceX", 1, 1, 1, 2, Q("0.5 in")))
sketch15.addConstraint(Sketcher.Constraint("DistanceY", 0, 2, -1, 1, Q("2 in")))
sketch15.addConstraint(Sketcher.Constraint("DistanceX", 1, 2, -1, 1, Q("2 in")))
pocket5 = body.newObject("PartDesign::Pocket", "Pocket004")
pocket5.Profile = sketch15
pocket5.Length = Q("0.5 in")

doc.recompute()
